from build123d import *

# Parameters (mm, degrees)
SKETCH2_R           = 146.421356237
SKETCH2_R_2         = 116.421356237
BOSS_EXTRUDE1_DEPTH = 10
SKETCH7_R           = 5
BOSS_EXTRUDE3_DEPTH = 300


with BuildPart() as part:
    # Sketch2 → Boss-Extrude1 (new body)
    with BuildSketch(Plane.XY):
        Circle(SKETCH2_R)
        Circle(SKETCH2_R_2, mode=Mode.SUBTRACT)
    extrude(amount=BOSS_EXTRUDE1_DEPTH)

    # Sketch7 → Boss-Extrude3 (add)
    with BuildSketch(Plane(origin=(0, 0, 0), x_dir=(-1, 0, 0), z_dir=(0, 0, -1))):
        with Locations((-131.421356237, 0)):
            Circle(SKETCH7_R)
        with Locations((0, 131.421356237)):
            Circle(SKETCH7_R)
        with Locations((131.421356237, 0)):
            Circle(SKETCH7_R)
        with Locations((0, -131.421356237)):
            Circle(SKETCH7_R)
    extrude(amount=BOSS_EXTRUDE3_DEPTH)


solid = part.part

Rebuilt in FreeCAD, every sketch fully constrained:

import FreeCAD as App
import Part
import Sketcher
Q = App.Units.Quantity

doc = App.newDocument("Part")
body = doc.addObject("PartDesign::Body", "Body")

# Sketch on XY plane
sketch1 = doc.addObject("Sketcher::SketchObject", "Sketch")
body.addObject(sketch1)
sketch1.AttachmentSupport = (doc.XY_Plane, [""])
sketch1.MapMode = "FlatFace"
sketch1.addGeometry(Part.Circle(App.Vector(0, 0, 0), App.Vector(0, 0, 1), 146), False)
sketch1.addGeometry(Part.Circle(App.Vector(0, 0, 0), App.Vector(0, 0, 1), 116), False)
sketch1.addConstraint(Sketcher.Constraint("Coincident", 0, 3, -1, 1))
sketch1.addConstraint(Sketcher.Constraint("Coincident", 1, 3, -1, 1))
sketch1.addConstraint(Sketcher.Constraint("Diameter", 0, Q("292.842712 mm")))
sketch1.addConstraint(Sketcher.Constraint("Diameter", 1, Q("232.842712 mm")))
pad1 = doc.addObject("PartDesign::Pad", "Pad")
body.addObject(pad1)
pad1.Profile = sketch1
pad1.Length = 10

# Sketch on XY plane
sketch2 = doc.addObject("Sketcher::SketchObject", "Sketch001")
body.addObject(sketch2)
sketch2.AttachmentSupport = (doc.XY_Plane, [""])
sketch2.MapMode = "FlatFace"
sketch2.addGeometry(Part.Circle(App.Vector(131, 0, 0), App.Vector(0, 0, 1), 5), False)
sketch2.addGeometry(Part.Circle(App.Vector(0, 131, 0), App.Vector(0, 0, 1), 5), False)
sketch2.addGeometry(Part.Circle(App.Vector(-131, 0, 0), App.Vector(0, 0, 1), 5), False)
sketch2.addGeometry(Part.Circle(App.Vector(0, -131, 0), App.Vector(0, 0, 1), 5), False)
sketch2.addConstraint(Sketcher.Constraint("Equal", 0, 1))
sketch2.addConstraint(Sketcher.Constraint("Equal", 1, 2))
sketch2.addConstraint(Sketcher.Constraint("Equal", 2, 3))
sketch2.addConstraint(Sketcher.Constraint("Symmetric", 0, 3, 2, 3, -1, 1))
sketch2.addConstraint(Sketcher.Constraint("Symmetric", 1, 3, 3, 3, -1, 1))
sketch2.addConstraint(Sketcher.Constraint("PointOnObject", 0, 3, -1))
sketch2.addConstraint(Sketcher.Constraint("PointOnObject", 1, 3, -2))
sketch2.addConstraint(Sketcher.Constraint("Diameter", 0, Q("10 mm")))
sketch2.addConstraint(Sketcher.Constraint("DistanceX", -1, 1, 0, 3, Q("131.421356 mm")))
sketch2.addConstraint(Sketcher.Constraint("DistanceY", -1, 1, 1, 3, Q("131.421356 mm")))
pad2 = doc.addObject("PartDesign::Pad", "Pad001")
body.addObject(pad2)
pad2.Profile = sketch2
pad2.Length = 300
pad2.Reversed = True

doc.recompute()
